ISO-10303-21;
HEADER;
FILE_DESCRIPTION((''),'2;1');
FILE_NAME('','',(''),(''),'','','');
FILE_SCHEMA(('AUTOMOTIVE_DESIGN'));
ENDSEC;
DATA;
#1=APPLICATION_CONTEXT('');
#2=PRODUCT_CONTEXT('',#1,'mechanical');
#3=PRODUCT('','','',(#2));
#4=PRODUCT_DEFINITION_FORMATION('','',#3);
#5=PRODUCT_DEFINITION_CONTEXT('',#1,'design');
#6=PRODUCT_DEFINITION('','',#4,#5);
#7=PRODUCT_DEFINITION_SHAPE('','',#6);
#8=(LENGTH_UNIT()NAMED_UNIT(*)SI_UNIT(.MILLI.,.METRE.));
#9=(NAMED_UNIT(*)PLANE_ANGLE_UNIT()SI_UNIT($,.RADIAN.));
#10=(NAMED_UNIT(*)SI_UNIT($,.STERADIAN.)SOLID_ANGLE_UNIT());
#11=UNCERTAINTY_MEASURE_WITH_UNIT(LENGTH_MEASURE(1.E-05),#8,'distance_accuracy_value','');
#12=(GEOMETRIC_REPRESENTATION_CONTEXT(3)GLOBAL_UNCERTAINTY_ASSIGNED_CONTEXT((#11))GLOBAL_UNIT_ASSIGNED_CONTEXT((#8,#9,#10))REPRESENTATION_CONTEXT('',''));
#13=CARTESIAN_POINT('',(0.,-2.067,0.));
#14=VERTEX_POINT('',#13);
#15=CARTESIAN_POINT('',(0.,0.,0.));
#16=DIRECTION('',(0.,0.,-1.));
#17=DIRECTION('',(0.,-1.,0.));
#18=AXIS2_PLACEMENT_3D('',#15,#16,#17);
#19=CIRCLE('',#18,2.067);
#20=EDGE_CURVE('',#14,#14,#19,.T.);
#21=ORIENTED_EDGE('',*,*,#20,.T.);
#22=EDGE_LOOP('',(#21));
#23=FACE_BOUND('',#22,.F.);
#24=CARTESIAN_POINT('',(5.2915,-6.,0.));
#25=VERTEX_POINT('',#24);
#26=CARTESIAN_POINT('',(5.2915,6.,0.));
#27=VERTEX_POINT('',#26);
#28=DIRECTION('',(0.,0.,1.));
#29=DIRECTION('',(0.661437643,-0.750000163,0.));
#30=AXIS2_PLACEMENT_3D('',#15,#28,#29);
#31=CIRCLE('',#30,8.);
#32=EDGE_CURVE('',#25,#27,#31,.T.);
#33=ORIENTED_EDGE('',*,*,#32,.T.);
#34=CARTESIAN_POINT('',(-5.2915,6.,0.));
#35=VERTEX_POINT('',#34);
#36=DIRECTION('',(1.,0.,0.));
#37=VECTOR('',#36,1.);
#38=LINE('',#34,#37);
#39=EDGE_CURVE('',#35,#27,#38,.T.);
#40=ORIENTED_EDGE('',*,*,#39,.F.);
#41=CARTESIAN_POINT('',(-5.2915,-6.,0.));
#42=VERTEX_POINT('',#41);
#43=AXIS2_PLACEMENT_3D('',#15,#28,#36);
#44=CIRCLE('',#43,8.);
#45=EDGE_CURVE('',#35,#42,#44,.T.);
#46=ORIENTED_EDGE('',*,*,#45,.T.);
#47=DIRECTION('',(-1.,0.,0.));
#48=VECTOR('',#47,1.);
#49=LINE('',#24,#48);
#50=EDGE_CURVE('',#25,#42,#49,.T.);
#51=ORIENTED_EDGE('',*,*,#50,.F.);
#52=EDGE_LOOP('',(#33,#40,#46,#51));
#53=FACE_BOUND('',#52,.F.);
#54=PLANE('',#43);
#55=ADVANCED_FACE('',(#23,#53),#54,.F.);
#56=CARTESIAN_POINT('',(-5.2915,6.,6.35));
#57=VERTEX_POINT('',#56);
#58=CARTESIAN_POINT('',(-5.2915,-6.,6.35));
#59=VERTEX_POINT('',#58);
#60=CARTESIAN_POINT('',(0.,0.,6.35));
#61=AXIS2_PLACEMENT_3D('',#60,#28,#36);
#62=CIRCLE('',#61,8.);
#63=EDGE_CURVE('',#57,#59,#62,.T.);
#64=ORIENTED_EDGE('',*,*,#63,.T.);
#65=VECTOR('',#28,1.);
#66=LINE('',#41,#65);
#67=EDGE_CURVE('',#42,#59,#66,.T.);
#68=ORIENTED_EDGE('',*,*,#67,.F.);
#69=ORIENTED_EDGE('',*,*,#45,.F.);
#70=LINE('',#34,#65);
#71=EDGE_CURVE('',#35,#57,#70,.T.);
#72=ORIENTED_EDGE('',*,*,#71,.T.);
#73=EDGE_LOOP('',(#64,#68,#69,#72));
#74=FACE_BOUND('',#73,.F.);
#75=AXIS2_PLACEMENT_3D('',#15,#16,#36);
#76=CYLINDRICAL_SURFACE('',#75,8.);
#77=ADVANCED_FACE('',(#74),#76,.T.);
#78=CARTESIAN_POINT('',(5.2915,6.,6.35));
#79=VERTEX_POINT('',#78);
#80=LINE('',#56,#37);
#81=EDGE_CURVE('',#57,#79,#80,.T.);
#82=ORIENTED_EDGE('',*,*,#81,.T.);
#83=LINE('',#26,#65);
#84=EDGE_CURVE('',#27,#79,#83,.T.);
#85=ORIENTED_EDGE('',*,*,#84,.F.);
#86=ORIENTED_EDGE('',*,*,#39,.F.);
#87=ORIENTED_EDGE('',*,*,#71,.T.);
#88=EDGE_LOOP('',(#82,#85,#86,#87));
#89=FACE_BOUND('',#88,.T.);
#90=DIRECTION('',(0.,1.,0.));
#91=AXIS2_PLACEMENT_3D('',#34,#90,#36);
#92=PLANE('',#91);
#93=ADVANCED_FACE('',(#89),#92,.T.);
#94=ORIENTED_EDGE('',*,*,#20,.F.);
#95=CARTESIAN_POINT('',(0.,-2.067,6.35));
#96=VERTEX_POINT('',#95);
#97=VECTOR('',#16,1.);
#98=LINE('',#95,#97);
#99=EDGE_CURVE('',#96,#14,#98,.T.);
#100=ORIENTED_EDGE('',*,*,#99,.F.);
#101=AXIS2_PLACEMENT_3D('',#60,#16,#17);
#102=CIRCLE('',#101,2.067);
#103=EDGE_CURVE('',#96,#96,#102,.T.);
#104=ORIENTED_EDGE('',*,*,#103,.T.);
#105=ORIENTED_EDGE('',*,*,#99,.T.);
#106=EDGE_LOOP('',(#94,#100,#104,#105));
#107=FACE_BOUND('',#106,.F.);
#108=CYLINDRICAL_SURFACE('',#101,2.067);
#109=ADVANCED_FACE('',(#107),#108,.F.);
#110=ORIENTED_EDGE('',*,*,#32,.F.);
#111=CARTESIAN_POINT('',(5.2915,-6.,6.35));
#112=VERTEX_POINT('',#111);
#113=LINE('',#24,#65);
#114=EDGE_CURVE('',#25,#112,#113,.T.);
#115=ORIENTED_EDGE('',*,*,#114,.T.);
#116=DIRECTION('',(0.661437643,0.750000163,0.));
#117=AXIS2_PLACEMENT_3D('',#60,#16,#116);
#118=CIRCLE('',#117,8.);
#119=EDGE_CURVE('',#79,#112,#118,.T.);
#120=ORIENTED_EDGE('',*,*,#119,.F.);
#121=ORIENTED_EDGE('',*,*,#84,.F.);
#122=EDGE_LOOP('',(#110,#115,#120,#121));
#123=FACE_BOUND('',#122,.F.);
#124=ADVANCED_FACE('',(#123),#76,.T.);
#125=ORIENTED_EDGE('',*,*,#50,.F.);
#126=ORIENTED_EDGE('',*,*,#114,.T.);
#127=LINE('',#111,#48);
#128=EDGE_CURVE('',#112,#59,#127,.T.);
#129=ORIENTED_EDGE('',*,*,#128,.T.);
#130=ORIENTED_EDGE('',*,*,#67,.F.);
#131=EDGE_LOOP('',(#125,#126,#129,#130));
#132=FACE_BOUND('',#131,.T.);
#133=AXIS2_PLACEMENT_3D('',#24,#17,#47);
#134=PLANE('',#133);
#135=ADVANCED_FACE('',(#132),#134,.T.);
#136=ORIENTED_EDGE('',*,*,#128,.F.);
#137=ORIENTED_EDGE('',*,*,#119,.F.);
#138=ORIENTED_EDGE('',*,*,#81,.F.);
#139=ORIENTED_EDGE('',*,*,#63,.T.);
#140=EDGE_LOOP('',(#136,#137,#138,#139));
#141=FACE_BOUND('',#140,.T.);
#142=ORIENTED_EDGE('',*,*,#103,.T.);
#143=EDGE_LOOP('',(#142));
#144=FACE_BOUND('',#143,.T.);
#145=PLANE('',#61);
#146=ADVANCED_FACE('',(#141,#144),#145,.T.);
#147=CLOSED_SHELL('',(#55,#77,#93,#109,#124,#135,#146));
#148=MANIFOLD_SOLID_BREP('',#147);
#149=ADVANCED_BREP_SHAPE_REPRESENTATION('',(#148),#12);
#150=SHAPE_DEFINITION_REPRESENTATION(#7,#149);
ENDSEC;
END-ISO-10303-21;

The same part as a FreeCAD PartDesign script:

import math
import FreeCAD as App
import Part
import Sketcher

V = App.Vector
Q = App.Units.Quantity

doc = App.newDocument("Part")
body = doc.addObject("PartDesign::Body", "Body")

# Sketch on XY plane
sketch1 = body.newObject("Sketcher::SketchObject", "Sketch")
sketch1.AttachmentSupport = (doc.getObject("XY_Plane"), [""])
sketch1.MapMode = "FlatFace"
sketch1.addGeometry([
    Part.ArcOfCircle(Part.Circle(V(0, 0, 0), V(0, 0, 1), 8), math.radians(-49), math.radians(49)),
    Part.LineSegment(V(5, 6, 0), V(-5, 6, 0)),
    Part.ArcOfCircle(Part.Circle(V(0, 0, 0), V(0, 0, 1), 8), math.radians(131), math.radians(229)),
    Part.LineSegment(V(-5, -6, 0), V(5, -6, 0)),
], False)
sketch1.addConstraint([
    Sketcher.Constraint("Coincident", 0, 2, 1, 1),
    Sketcher.Constraint("Coincident", 1, 2, 2, 1),
    Sketcher.Constraint("Coincident", 2, 2, 3, 1),
    Sketcher.Constraint("Coincident", 3, 2, 0, 1),
    Sketcher.Constraint("Horizontal", 1),
    Sketcher.Constraint("Horizontal", 3),
    Sketcher.Constraint("Coincident", 0, 3, -1, 1),
    Sketcher.Constraint("Coincident", 2, 3, -1, 1),
    Sketcher.Constraint("Equal", 0, 2),
    Sketcher.Constraint("Vertical", 1, 2, 2, 2),
    Sketcher.Constraint("Radius", 0, Q("8 mm")),
    Sketcher.Constraint("DistanceY", 2, 2, 1, 2, Q("12 mm")),
])
pad1 = body.newObject("PartDesign::Pad", "Pad")
pad1.Profile = sketch1
pad1.Length = 6.35

# Sketch on XY plane
sketch2 = body.newObject("Sketcher::SketchObject", "Sketch001")
sketch2.AttachmentSupport = (doc.getObject("XY_Plane"), [""])
sketch2.MapMode = "FlatFace"
sketch2.AttachmentOffset = App.Placement(V(0, 0, 6.35), App.Rotation())
sketch2.addGeometry(Part.Circle(V(0, 0, 0), V(0, 0, 1), 2.1), False)
sketch2.addConstraint([
    Sketcher.Constraint("Coincident", 0, 3, -1, 1),
    Sketcher.Constraint("Diameter", 0, Q("4.134 mm")),
])
doc.recompute()
hole = body.newObject("PartDesign::Hole", "Hole")
hole.Profile = sketch2
hole.ThreadType = "None"
hole.Diameter = 4.134
hole.DepthType = "ThroughAll"

doc.recompute()
